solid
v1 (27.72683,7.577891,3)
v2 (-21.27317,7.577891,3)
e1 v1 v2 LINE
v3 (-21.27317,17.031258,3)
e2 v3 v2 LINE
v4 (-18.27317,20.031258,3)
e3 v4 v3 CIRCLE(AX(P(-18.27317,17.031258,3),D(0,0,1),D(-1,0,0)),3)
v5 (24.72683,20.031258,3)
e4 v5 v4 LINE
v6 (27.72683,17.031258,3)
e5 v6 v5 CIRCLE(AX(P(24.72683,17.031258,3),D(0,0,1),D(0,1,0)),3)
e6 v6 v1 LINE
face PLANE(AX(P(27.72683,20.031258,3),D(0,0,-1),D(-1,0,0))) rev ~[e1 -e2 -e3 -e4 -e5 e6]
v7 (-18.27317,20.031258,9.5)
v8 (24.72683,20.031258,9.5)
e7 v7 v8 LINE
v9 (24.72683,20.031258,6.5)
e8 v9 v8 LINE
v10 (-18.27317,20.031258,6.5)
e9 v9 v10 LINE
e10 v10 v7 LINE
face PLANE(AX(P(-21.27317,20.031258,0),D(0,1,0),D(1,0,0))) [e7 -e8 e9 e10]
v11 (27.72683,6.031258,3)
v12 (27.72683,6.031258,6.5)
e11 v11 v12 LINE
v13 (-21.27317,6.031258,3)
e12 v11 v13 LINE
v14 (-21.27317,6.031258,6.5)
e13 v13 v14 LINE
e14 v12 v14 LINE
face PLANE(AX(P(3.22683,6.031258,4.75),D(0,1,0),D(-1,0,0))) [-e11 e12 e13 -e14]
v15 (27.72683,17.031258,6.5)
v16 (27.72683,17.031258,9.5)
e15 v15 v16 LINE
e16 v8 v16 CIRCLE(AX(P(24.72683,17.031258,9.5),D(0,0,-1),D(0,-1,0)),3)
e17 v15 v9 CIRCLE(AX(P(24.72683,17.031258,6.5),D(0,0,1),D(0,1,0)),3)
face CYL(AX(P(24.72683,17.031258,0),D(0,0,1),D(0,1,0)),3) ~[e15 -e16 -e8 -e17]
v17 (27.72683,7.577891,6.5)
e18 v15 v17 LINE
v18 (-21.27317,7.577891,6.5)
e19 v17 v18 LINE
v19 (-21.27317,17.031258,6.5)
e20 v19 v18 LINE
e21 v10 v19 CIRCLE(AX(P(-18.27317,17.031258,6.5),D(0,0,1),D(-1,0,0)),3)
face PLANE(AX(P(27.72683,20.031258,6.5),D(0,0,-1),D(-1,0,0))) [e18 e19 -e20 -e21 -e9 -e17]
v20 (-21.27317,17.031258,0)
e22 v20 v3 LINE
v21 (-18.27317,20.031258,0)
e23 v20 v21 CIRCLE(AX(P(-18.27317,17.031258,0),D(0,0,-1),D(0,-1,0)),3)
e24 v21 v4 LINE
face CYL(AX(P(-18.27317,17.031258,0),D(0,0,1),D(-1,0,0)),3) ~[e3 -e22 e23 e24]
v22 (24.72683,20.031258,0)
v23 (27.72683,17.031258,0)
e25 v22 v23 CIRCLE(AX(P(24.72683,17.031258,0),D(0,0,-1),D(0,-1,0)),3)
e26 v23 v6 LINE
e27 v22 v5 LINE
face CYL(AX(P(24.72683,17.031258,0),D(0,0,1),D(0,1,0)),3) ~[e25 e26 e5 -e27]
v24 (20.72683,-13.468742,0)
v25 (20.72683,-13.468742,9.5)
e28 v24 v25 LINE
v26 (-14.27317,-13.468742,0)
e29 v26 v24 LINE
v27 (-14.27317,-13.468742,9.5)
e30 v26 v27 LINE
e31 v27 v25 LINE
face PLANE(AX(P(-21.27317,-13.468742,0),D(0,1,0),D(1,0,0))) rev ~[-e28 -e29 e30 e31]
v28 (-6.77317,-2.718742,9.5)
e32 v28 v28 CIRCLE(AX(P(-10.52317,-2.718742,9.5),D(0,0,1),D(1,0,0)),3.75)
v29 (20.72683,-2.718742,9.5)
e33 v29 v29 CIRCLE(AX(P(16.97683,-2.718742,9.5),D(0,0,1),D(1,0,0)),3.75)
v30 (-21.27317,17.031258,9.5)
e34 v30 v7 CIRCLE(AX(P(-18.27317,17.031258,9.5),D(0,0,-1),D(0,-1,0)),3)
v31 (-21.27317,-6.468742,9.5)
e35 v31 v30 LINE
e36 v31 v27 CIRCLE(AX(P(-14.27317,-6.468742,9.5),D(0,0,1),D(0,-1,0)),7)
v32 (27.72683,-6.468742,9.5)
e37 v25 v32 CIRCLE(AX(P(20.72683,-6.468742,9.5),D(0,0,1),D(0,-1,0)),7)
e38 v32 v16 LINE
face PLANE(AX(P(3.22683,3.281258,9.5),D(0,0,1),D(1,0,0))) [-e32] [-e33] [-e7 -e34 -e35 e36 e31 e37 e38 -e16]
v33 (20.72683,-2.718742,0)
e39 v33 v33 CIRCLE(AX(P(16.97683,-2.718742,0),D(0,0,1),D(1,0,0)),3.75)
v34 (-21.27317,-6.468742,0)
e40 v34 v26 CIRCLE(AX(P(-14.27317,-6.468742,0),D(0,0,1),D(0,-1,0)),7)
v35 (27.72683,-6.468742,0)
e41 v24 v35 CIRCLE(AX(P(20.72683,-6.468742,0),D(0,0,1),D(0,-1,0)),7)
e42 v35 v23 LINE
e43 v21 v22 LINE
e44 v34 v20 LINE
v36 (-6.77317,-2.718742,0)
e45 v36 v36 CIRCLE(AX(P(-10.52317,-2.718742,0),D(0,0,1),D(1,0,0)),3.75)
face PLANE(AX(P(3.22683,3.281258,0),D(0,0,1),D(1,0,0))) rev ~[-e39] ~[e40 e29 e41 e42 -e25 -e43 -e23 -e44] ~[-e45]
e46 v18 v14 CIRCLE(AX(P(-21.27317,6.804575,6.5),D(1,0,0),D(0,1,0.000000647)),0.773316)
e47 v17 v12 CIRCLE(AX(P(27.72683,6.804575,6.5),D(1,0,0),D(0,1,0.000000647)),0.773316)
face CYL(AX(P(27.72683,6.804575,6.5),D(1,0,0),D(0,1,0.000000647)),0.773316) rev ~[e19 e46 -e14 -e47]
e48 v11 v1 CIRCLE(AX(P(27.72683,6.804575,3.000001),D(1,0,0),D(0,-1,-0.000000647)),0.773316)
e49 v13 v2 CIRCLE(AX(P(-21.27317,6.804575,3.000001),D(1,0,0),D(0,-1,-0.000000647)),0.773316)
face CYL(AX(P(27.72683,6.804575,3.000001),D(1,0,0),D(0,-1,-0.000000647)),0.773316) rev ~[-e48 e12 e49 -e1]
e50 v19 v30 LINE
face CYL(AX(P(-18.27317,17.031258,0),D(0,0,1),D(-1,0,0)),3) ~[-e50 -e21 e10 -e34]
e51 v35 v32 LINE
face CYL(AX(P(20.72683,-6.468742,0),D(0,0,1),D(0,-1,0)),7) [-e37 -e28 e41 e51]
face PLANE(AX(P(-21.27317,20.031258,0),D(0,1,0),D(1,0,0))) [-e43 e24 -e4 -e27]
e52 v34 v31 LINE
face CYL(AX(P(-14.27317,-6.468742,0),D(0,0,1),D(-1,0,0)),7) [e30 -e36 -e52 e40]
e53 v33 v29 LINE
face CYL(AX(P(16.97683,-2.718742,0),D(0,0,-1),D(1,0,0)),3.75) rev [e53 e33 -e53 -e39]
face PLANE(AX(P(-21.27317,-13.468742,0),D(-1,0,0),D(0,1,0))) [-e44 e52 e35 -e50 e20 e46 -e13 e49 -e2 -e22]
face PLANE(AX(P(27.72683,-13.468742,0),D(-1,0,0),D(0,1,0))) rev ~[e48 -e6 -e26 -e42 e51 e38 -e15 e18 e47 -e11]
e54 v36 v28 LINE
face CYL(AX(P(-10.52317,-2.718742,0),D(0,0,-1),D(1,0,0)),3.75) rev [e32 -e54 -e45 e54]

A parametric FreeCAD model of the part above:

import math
import FreeCAD as App
import Part
import Sketcher


def edges_at(feature, points):
    """Names of the edges that pass closest to the given points."""
    edges = feature.Shape.Edges
    near = lambda p: min(range(len(edges)), key=lambda i: edges[i].distToShape(Part.Vertex(*p))[0])
    return sorted({f"Edge{near(p) + 1}" for p in points})

doc = App.newDocument("Part")
body = doc.addObject("PartDesign::Body", "Body")

sketch1 = body.newObject("Sketcher::SketchObject", "Sketch")
sketch1.AttachmentSupport = (doc.getObject("XY_Plane"), [""])
sketch1.MapMode = "FlatFace"
sketch1.addGeometry([
    Part.LineSegment(App.Vector(-21.3, 20, 0), App.Vector(-21.3, -13.5, 0)),
    Part.LineSegment(App.Vector(-21.3, -13.5, 0), App.Vector(27.7, -13.5, 0)),
    Part.LineSegment(App.Vector(27.7, -13.5, 0), App.Vector(27.7, 20, 0)),
    Part.LineSegment(App.Vector(27.7, 20, 0), App.Vector(-21.3, 20, 0)),
    Part.Circle(App.Vector(-10.5, -2.7, 0), App.Vector(0, 0, 1), 3.8),
    Part.Circle(App.Vector(17, -2.7, 0), App.Vector(0, 0, 1), 3.8),
], False)
sketch1.addConstraint([
    Sketcher.Constraint("Coincident", 0, 2, 1, 1),
    Sketcher.Constraint("Coincident", 1, 2, 2, 1),
    Sketcher.Constraint("Coincident", 2, 2, 3, 1),
    Sketcher.Constraint("Coincident", 3, 2, 0, 1),
    Sketcher.Constraint("Vertical", 0),
    Sketcher.Constraint("Horizontal", 1),
    Sketcher.Constraint("Vertical", 2),
    Sketcher.Constraint("Horizontal", 3),
    Sketcher.Constraint("Equal", 4, 5),
    Sketcher.Constraint("Horizontal", 4, 3, 5, 3),
    Sketcher.Constraint("Diameter", 4, 7.5),
    Sketcher.Constraint("DistanceX", 1, 1, 1, 2, 49.0),
    Sketcher.Constraint("DistanceY", 0, 2, 0, 1, 33.5),
    Sketcher.Constraint("DistanceX", 4, 3, 5, 3, 27.5),
    Sketcher.Constraint("DistanceX", 0, 2, 4, 3, 10.75),
    Sketcher.Constraint("DistanceY", 0, 2, 4, 3, 10.75),
    Sketcher.Constraint("DistanceX", 4, 3, -1, 1, 10.52317),
    Sketcher.Constraint("DistanceY", -1, 1, 2, 2, 20.031258),
])
pad1 = body.newObject("PartDesign::Pad", "Pad")
pad1.Profile = sketch1
pad1.Length = 9.5
doc.recompute()

fillet = body.newObject("PartDesign::Fillet", "Fillet")
fillet.Base = (pad1, edges_at(pad1, [(-21.273, -13.469, 4.75), (27.727, -13.469, 4.75)]))
fillet.Radius = 7
doc.recompute()

fillet2 = body.newObject("PartDesign::Fillet", "Fillet001")
fillet2.Base = (fillet, edges_at(fillet, [(27.727, 20.031, 4.75), (-21.273, 20.031, 4.75)]))
fillet2.Radius = 3

sketch2 = body.newObject("Sketcher::SketchObject", "Sketch001")
sketch2.AttachmentSupport = (doc.getObject("XZ_Plane"), [""])
sketch2.MapMode = "FlatFace"
sketch2.AttachmentOffset = App.Placement(App.Vector(0, 0, -20.031258), App.Rotation())
sketch2.addGeometry([
    Part.LineSegment(App.Vector(27.7, 6.5, 0), App.Vector(27.7, 3, 0)),
    Part.LineSegment(App.Vector(27.7, 3, 0), App.Vector(-21.3, 3, 0)),
    Part.LineSegment(App.Vector(-21.3, 3, 0), App.Vector(-21.3, 6.5, 0)),
    Part.LineSegment(App.Vector(-21.3, 6.5, 0), App.Vector(27.7, 6.5, 0)),
], False)
sketch2.addConstraint([
    Sketcher.Constraint("Coincident", 0, 2, 1, 1),
    Sketcher.Constraint("Coincident", 1, 2, 2, 1),
    Sketcher.Constraint("Coincident", 2, 2, 3, 1),
    Sketcher.Constraint("Coincident", 3, 2, 0, 1),
    Sketcher.Constraint("Vertical", 0),
    Sketcher.Constraint("Horizontal", 1),
    Sketcher.Constraint("Vertical", 2),
    Sketcher.Constraint("Horizontal", 3),
    Sketcher.Constraint("DistanceX", 1, 2, 1, 1, 49.0),
    Sketcher.Constraint("DistanceY", 0, 2, 0, 1, 3.5),
    Sketcher.Constraint("DistanceY", -1, 1, 0, 2, 3.0),
    Sketcher.Constraint("DistanceX", -1, 1, 0, 2, 27.72683),
])
pocket1 = body.newObject("PartDesign::Pocket", "Pocket")
pocket1.Profile = sketch2
pocket1.Length = 14
pocket1.Reversed = True

sketch3 = body.newObject("Sketcher::SketchObject", "Sketch002")
sketch3.AttachmentSupport = (doc.getObject("YZ_Plane"), [""])
sketch3.MapMode = "FlatFace"
sketch3.AttachmentOffset = App.Placement(App.Vector(0, 0, 27.72683), App.Rotation())
sketch3.addGeometry([
    Part.ArcOfCircle(Part.Circle(App.Vector(6.8, 6.5, 0), App.Vector(0, 0, 1), 0.8), math.radians(0), math.radians(180)),
    Part.LineSegment(App.Vector(6, 6.5, 0), App.Vector(7.6, 6.5, 0)),
    Part.LineSegment(App.Vector(7.6, 3, 0), App.Vector(6, 3, 0)),
    Part.ArcOfCircle(Part.Circle(App.Vector(6.8, 3, 0), App.Vector(0, 0, 1), 0.8), math.radians(-180), math.radians(0)),
], False)
sketch3.addConstraint([
    Sketcher.Constraint("Coincident", 0, 1, 1, 2),
    Sketcher.Constraint("Coincident", 1, 1, 0, 2),
    Sketcher.Constraint("Coincident", 2, 1, 3, 2),
    Sketcher.Constraint("Coincident", 3, 1, 2, 2),
    Sketcher.Constraint("Horizontal", 1),
    Sketcher.Constraint("Horizontal", 2),
    Sketcher.Constraint("Equal", 0, 3),
    Sketcher.Constraint("Horizontal", 3, 3, 2, 1),
    Sketcher.Constraint("Vertical", 0, 3, 3, 3),
    Sketcher.Constraint("DistanceY", -1, 1, 3, 3, 3.000001),
    Sketcher.Constraint("DistanceY", -1, 1, 0, 3, 6.5),
    Sketcher.Constraint("DistanceY", -1, 1, 0, 1, 6.5),
    Sketcher.Constraint("Radius", 0, 0.773316),
    Sketcher.Constraint("DistanceX", -1, 1, 0, 1, 7.577891),
])
pocket2 = body.newObject("PartDesign::Pocket", "Pocket001")
pocket2.Profile = sketch3
pocket2.Length = 50

doc.recompute()
